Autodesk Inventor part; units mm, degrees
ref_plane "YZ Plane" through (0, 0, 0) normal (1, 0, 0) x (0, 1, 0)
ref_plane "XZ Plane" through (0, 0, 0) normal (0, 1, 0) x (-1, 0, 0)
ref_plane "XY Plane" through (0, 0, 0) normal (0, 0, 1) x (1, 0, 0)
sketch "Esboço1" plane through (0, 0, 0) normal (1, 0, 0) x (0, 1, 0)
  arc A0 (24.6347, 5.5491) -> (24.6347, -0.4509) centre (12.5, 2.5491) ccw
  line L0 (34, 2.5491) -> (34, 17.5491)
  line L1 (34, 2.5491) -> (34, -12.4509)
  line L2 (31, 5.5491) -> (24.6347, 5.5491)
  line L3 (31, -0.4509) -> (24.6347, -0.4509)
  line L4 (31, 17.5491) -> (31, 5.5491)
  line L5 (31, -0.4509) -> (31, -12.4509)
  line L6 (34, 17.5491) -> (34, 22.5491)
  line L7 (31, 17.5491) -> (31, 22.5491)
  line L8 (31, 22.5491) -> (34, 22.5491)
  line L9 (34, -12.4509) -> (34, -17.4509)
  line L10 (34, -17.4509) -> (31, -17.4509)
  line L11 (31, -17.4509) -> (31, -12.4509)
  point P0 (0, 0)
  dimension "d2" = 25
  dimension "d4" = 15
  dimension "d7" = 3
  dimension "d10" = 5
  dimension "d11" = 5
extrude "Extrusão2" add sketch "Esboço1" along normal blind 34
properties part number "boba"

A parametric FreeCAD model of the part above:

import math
import FreeCAD as App
import Part
import Sketcher
from FreeCAD import Vector
Q = App.Units.Quantity

doc = App.newDocument("Part")
params = doc.addObject("Spreadsheet::Sheet", "Params")
for row, (alias, value) in enumerate([
    ("sketch1_radius", "12.5 mm"),
    ("sketch1_width", "3 mm"),
    ("sketch1_height", "17 mm"),
    ("pad1_length", "34 mm"),
], start=1):
    params.set(f"A{row}", alias)
    params.set(f"B{row}", "=" + value)
    params.setAlias(f"B{row}", alias)

body = doc.addObject("PartDesign::Body", "Body")

# Sketch on YZ plane
sketch1 = body.newObject("Sketcher::SketchObject", "Sketch")
sketch1.AttachmentSupport = (doc.getObject("YZ_Plane"), [""])
sketch1.MapMode = "FlatFace"
sketch1.addGeometry([
    Part.LineSegment(Vector(31, 5.5, 0), Vector(24.6, 5.5, 0)),  # 0
    Part.ArcOfCircle(Part.Circle(Vector(12.5, 2.5, 0), Vector(0, 0, 1), 12.5), math.radians(14), math.radians(346)),  # 1
    Part.LineSegment(Vector(24.6, -0.5, 0), Vector(31, -0.5, 0)),  # 2
    Part.LineSegment(Vector(31, -0.5, 0), Vector(31, -17.5, 0)),  # 3
    Part.LineSegment(Vector(31, -17.5, 0), Vector(34, -17.5, 0)),  # 4
    Part.LineSegment(Vector(34, -17.5, 0), Vector(34, 22.5, 0)),  # 5
    Part.LineSegment(Vector(34, 22.5, 0), Vector(31, 22.5, 0)),  # 6
    Part.LineSegment(Vector(31, 22.5, 0), Vector(31, 5.5, 0)),  # 7
], False)
sketch1.addConstraint([
    Sketcher.Constraint("Coincident", 0, 2, 1, 1),
    Sketcher.Constraint("Coincident", 1, 2, 2, 1),
    Sketcher.Constraint("Coincident", 2, 2, 3, 1),
    Sketcher.Constraint("Coincident", 3, 2, 4, 1),
    Sketcher.Constraint("Coincident", 4, 2, 5, 1),
    Sketcher.Constraint("Coincident", 5, 2, 6, 1),
    Sketcher.Constraint("Coincident", 6, 2, 7, 1),
    Sketcher.Constraint("Coincident", 7, 2, 0, 1),
    Sketcher.Constraint("Horizontal", 0),
    Sketcher.Constraint("Horizontal", 2),
    Sketcher.Constraint("Vertical", 3),
    Sketcher.Constraint("Horizontal", 4),
    Sketcher.Constraint("Vertical", 5),
    Sketcher.Constraint("Horizontal", 6),
    Sketcher.Constraint("Vertical", 7),
    Sketcher.Constraint("Vertical", 0, 2, 1, 2),
    Sketcher.Constraint("Vertical", 3, 2, 6, 2),
    Sketcher.Constraint("Equal", 3, 7),
    Sketcher.Constraint("Radius", 1, Q("12.5 mm")),
    Sketcher.Constraint("DistanceX", 4, 1, 4, 2, Q("3 mm")),
    Sketcher.Constraint("DistanceY", 1, 3, 0, 2, Q("3 mm")),
    Sketcher.Constraint("DistanceY", 3, 2, 3, 1, Q("17 mm")),
    Sketcher.Constraint("DistanceX", -1, 1, 2, 2, Q("31 mm")),
    Sketcher.Constraint("DistanceX", -1, 1, 1, 3, Q("12.5 mm")),
    Sketcher.Constraint("DistanceY", -1, 1, 1, 3, Q("2.549 mm")),
])
sketch1.setExpression("Constraints[18]", "Params.sketch1_radius")
sketch1.setExpression("Constraints[19]", "Params.sketch1_width")
sketch1.setExpression("Constraints[21]", "Params.sketch1_height")
pad1 = body.newObject("PartDesign::Pad", "Pad")
pad1.Profile = sketch1
pad1.setExpression("Length", "Params.pad1_length")

doc.recompute()
